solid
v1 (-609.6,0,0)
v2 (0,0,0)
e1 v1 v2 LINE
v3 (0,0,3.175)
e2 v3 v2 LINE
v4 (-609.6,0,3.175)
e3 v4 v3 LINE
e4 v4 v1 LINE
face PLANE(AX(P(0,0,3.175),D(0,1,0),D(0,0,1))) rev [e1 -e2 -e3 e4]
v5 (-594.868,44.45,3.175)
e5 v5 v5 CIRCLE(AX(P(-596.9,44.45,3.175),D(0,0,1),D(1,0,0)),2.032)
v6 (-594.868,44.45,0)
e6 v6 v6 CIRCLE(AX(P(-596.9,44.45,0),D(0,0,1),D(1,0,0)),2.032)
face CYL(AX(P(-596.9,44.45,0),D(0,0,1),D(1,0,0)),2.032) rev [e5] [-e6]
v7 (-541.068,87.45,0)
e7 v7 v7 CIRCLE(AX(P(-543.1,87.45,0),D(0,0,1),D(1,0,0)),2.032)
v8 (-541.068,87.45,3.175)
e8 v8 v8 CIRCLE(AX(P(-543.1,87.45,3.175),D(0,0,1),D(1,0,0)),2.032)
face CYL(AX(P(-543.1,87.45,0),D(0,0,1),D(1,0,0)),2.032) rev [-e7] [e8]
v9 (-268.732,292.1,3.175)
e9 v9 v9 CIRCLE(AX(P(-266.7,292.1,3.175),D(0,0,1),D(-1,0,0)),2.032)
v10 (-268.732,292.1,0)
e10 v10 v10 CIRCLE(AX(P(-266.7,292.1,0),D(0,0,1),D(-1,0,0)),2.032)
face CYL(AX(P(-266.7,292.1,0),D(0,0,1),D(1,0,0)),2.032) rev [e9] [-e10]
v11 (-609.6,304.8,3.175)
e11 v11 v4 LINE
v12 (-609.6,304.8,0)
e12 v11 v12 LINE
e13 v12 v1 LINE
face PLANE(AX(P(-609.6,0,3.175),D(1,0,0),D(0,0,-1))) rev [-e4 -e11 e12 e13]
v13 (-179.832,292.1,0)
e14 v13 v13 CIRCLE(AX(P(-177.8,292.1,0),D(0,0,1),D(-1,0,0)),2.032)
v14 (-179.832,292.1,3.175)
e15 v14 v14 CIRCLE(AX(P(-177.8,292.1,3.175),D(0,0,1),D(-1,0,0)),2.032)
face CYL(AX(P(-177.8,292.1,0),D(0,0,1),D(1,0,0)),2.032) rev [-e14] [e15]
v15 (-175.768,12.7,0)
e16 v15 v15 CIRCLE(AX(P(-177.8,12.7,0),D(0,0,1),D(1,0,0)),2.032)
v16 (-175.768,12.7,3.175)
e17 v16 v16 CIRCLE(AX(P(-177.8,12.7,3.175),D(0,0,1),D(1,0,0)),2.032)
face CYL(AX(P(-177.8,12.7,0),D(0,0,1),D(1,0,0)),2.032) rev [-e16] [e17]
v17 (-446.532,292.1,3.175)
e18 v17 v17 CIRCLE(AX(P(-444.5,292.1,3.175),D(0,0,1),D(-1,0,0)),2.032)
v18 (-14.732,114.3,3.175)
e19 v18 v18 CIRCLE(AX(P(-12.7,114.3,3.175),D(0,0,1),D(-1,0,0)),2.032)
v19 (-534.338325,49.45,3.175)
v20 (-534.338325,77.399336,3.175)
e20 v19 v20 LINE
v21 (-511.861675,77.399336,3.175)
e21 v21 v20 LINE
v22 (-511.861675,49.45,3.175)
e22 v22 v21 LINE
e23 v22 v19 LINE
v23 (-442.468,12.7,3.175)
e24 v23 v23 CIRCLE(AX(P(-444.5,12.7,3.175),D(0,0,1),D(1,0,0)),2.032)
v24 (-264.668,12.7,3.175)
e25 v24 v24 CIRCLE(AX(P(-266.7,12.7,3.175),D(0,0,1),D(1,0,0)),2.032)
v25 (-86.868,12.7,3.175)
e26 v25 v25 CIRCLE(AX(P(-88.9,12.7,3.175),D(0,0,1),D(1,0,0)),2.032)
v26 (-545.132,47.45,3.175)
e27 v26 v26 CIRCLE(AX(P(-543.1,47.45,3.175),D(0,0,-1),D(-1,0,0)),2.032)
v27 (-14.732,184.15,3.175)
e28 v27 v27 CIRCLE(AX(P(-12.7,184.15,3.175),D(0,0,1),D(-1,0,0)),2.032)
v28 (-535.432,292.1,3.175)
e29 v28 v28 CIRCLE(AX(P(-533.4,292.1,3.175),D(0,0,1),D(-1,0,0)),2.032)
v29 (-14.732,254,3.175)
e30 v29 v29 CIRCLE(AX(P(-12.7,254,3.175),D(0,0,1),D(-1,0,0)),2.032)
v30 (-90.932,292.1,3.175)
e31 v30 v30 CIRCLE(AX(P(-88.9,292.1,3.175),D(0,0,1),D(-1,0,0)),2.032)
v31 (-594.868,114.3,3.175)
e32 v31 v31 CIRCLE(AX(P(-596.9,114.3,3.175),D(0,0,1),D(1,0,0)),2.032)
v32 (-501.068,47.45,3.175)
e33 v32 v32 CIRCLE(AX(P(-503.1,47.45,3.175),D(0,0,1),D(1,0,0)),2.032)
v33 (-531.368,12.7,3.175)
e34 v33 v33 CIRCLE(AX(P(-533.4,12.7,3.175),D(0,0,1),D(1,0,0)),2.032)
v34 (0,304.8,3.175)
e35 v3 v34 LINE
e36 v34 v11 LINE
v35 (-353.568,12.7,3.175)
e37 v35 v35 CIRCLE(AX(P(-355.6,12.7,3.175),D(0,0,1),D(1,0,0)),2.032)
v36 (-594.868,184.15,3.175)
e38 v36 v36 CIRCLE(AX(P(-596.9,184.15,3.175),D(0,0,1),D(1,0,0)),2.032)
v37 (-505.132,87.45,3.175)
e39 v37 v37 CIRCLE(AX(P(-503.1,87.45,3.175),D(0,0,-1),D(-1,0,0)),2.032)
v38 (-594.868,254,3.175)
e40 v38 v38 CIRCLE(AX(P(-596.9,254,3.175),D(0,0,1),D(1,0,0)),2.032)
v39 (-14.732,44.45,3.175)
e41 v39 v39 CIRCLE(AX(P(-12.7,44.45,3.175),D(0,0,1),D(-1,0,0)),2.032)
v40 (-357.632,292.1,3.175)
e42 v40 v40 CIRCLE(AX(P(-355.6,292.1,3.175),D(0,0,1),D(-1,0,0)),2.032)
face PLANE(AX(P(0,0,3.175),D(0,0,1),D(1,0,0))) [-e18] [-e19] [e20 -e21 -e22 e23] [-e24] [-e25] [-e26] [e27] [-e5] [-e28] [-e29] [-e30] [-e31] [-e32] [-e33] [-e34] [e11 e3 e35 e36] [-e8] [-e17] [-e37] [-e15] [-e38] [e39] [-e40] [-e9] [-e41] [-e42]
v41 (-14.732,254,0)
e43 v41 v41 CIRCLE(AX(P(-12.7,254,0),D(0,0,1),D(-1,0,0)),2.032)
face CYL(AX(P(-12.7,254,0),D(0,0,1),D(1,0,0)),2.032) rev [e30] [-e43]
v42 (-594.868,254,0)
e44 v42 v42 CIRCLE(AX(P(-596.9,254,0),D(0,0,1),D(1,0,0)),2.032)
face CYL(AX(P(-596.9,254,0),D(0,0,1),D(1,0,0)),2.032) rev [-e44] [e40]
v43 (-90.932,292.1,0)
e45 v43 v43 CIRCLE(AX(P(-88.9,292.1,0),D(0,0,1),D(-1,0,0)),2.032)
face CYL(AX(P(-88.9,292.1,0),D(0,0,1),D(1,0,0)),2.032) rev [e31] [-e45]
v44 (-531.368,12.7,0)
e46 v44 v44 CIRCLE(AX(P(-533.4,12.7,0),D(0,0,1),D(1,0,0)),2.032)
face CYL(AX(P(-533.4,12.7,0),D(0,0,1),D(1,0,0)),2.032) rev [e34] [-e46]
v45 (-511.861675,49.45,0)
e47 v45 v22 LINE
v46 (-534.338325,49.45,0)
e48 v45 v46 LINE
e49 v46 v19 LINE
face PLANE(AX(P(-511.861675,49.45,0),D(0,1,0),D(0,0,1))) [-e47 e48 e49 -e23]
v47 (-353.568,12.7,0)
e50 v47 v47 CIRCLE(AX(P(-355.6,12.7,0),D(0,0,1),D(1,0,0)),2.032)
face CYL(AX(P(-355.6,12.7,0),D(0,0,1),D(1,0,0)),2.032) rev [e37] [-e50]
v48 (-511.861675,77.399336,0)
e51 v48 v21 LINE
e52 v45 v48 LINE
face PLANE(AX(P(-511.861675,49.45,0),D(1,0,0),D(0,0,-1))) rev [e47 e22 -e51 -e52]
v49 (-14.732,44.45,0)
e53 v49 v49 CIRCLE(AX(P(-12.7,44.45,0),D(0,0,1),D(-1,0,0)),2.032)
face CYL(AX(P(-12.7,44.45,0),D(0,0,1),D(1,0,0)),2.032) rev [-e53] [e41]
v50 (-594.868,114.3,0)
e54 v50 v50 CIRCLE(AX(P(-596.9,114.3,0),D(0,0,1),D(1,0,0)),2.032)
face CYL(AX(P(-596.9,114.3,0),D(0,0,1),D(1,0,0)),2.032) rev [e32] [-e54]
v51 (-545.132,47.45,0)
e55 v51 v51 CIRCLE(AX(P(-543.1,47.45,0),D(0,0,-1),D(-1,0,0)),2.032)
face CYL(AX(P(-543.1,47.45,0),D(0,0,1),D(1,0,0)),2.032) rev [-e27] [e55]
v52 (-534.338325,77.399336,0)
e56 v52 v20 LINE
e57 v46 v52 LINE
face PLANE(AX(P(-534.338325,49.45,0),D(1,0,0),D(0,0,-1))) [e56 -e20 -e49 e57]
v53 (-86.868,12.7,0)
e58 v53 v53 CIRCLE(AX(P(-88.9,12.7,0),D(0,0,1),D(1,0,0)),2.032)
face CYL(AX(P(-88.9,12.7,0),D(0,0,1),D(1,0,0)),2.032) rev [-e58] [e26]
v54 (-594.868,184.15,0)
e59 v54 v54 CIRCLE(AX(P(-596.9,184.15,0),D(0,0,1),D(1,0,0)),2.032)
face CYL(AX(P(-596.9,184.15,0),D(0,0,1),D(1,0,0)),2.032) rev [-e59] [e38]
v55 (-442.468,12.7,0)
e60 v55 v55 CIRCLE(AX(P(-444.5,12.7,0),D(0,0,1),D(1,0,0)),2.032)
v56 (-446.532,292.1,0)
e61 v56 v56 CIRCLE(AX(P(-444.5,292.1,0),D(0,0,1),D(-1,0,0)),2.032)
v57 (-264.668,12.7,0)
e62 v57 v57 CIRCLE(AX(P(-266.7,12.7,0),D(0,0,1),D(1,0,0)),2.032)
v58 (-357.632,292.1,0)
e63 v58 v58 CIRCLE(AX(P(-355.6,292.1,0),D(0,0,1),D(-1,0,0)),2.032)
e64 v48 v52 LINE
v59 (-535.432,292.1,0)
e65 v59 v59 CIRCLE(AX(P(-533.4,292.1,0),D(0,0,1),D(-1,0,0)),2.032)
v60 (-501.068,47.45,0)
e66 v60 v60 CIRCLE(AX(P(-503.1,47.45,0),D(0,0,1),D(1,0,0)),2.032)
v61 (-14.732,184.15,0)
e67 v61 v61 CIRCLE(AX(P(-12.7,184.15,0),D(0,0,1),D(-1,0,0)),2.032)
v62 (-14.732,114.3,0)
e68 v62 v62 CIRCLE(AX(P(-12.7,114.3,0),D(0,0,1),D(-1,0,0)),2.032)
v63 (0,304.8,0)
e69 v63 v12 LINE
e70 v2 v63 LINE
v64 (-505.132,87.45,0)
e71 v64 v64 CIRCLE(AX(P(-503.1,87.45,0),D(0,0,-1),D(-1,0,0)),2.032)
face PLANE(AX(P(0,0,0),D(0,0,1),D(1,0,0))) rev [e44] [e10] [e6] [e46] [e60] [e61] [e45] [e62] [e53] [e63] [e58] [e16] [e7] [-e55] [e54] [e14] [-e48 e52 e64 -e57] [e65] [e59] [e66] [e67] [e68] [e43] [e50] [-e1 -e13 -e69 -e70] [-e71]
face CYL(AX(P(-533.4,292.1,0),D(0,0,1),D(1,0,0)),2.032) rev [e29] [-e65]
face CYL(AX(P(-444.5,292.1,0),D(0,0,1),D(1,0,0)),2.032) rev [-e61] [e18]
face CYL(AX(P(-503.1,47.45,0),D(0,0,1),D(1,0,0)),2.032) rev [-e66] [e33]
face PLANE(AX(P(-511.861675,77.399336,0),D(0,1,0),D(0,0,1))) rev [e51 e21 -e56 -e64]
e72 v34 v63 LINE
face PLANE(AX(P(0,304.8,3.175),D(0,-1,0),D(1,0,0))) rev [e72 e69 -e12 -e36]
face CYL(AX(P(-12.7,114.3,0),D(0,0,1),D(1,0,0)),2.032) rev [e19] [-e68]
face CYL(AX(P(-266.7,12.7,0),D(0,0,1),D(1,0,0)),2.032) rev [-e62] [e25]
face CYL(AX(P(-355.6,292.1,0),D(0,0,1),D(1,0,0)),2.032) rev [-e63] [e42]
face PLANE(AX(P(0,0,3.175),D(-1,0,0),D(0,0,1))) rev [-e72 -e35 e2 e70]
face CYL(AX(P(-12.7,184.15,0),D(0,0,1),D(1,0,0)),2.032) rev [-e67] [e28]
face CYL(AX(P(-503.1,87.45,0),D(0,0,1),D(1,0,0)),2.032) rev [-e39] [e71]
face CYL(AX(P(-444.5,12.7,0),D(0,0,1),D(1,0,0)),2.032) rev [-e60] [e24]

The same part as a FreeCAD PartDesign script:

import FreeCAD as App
import Part
import Sketcher
from FreeCAD import Vector
Q = App.Units.Quantity


def add_polygon(sketch, points):
    """Adds a closed chain of lines whose ends are joined by coincident constraints."""
    first, n = sketch.GeometryCount, len(points)
    for a, b in zip(points, points[1:] + points[:1]):
        sketch.addGeometry(Part.LineSegment(App.Vector(*a, 0), App.Vector(*b, 0)), False)
    for i in range(n):
        sketch.addConstraint(Sketcher.Constraint("Coincident", first + i, 2, first + (i + 1) % n, 1))

doc = App.newDocument("Part")
params = doc.addObject("Spreadsheet::Sheet", "Params")
for row, (alias, value) in enumerate([
    ("sketch1_width", "24 in"),
    ("sketch1_height", "12 in"),
    ("pad1_length", "0.125 in"),
    ("sketch2_diameter", "0.16 in"),
    ("sketch3_diameter", "0.16 in"),
    ("pocket2_length", "0.125 in"),
    ("sketch4_diameter", "0.16 in"),
], start=1):
    params.set(f"A{row}", alias)
    params.set(f"B{row}", "=" + value)
    params.setAlias(f"B{row}", alias)

body = doc.addObject("PartDesign::Body", "Body")

# Sketch on XY plane
sketch1 = body.newObject("Sketcher::SketchObject", "Sketch")
sketch1.AttachmentSupport = (doc.getObject("XY_Plane"), [""])
sketch1.MapMode = "FlatFace"
add_polygon(sketch1, [(-609.6, 304.8), (-609.6, 0), (0, 0), (0, 304.8)])  # lines 0-3
sketch1.addConstraint(Sketcher.Constraint("Vertical", 0))
sketch1.addConstraint(Sketcher.Constraint("Horizontal", 1))
sketch1.addConstraint(Sketcher.Constraint("Vertical", 2))
sketch1.addConstraint(Sketcher.Constraint("Horizontal", 3))
sketch1.addConstraint(Sketcher.Constraint("Coincident", 1, 2, -1, 1))
sketch1.addConstraint(Sketcher.Constraint("DistanceX", 1, 1, 1, 2, Q("24 in")))
sketch1.addConstraint(Sketcher.Constraint("DistanceY", 0, 2, 0, 1, Q("12 in")))
sketch1.setExpression("Constraints[9]", "Params.sketch1_width")
sketch1.setExpression("Constraints[10]", "Params.sketch1_height")
pad1 = body.newObject("PartDesign::Pad", "Pad")
pad1.Profile = sketch1
pad1.setExpression("Length", "Params.pad1_length")

# Sketch on XY plane
sketch2 = body.newObject("Sketcher::SketchObject", "Sketch001")
sketch2.AttachmentSupport = (doc.getObject("XY_Plane"), [""])
sketch2.MapMode = "FlatFace"
sketch2.AttachmentOffset = App.Placement(Vector(0, 0, 0.125 * 25.4), App.Rotation())
sketch2.addGeometry(Part.Circle(Vector(-533.4, 12.7, 0), Vector(0, 0, 1), 2.032), False)
sketch2.addGeometry(Part.Circle(Vector(-444.5, 12.7, 0), Vector(0, 0, 1), 2.032), False)
sketch2.addGeometry(Part.Circle(Vector(-355.6, 12.7, 0), Vector(0, 0, 1), 2.032), False)
sketch2.addGeometry(Part.Circle(Vector(-266.7, 12.7, 0), Vector(0, 0, 1), 2.032), False)
sketch2.addGeometry(Part.Circle(Vector(-177.8, 12.7, 0), Vector(0, 0, 1), 2.032), False)
sketch2.addGeometry(Part.Circle(Vector(-88.9, 12.7, 0), Vector(0, 0, 1), 2.032), False)
sketch2.addGeometry(Part.Circle(Vector(-88.9, 292.1, 0), Vector(0, 0, 1), 2.032), False)
sketch2.addGeometry(Part.Circle(Vector(-177.8, 292.1, 0), Vector(0, 0, 1), 2.032), False)
sketch2.addGeometry(Part.Circle(Vector(-266.7, 292.1, 0), Vector(0, 0, 1), 2.032), False)
sketch2.addGeometry(Part.Circle(Vector(-355.6, 292.1, 0), Vector(0, 0, 1), 2.032), False)
sketch2.addGeometry(Part.Circle(Vector(-444.5, 292.1, 0), Vector(0, 0, 1), 2.032), False)
sketch2.addGeometry(Part.Circle(Vector(-533.4, 292.1, 0), Vector(0, 0, 1), 2.032), False)
sketch2.addConstraint(Sketcher.Constraint("Equal", 0, 1))
sketch2.addConstraint(Sketcher.Constraint("Equal", 1, 2))
sketch2.addConstraint(Sketcher.Constraint("Equal", 2, 3))
sketch2.addConstraint(Sketcher.Constraint("Equal", 3, 4))
sketch2.addConstraint(Sketcher.Constraint("Equal", 4, 5))
sketch2.addConstraint(Sketcher.Constraint("Equal", 5, 6))
sketch2.addConstraint(Sketcher.Constraint("Equal", 6, 7))
sketch2.addConstraint(Sketcher.Constraint("Equal", 7, 8))
sketch2.addConstraint(Sketcher.Constraint("Equal", 8, 9))
sketch2.addConstraint(Sketcher.Constraint("Equal", 9, 10))
sketch2.addConstraint(Sketcher.Constraint("Equal", 10, 11))
sketch2.addConstraint(Sketcher.Constraint("Horizontal", 0, 3, 1, 3))
sketch2.addConstraint(Sketcher.Constraint("Horizontal", 1, 3, 2, 3))
sketch2.addConstraint(Sketcher.Constraint("Horizontal", 2, 3, 3, 3))
sketch2.addConstraint(Sketcher.Constraint("Horizontal", 3, 3, 4, 3))
sketch2.addConstraint(Sketcher.Constraint("Horizontal", 4, 3, 5, 3))
sketch2.addConstraint(Sketcher.Constraint("Horizontal", 6, 3, 7, 3))
sketch2.addConstraint(Sketcher.Constraint("Horizontal", 7, 3, 8, 3))
sketch2.addConstraint(Sketcher.Constraint("Horizontal", 8, 3, 9, 3))
sketch2.addConstraint(Sketcher.Constraint("Horizontal", 9, 3, 10, 3))
sketch2.addConstraint(Sketcher.Constraint("Horizontal", 10, 3, 11, 3))
sketch2.addConstraint(Sketcher.Constraint("Vertical", 5, 3, 6, 3))
sketch2.addConstraint(Sketcher.Constraint("Vertical", 4, 3, 7, 3))
sketch2.addConstraint(Sketcher.Constraint("Vertical", 3, 3, 8, 3))
sketch2.addConstraint(Sketcher.Constraint("Vertical", 2, 3, 9, 3))
sketch2.addConstraint(Sketcher.Constraint("Vertical", 1, 3, 10, 3))
sketch2.addConstraint(Sketcher.Constraint("Vertical", 0, 3, 11, 3))
sketch2.addConstraint(Sketcher.Constraint("Diameter", 0, Q("0.16 in")))
sketch2.addConstraint(Sketcher.Constraint("DistanceX", 0, 3, -1, 1, Q("21 in")))
sketch2.addConstraint(Sketcher.Constraint("DistanceX", 2, 3, -1, 1, Q("14 in")))
sketch2.addConstraint(Sketcher.Constraint("DistanceX", 4, 3, -1, 1, Q("7 in")))
sketch2.addConstraint(Sketcher.Constraint("DistanceX", 1, 3, 3, 3, Q("7 in")))
sketch2.addConstraint(Sketcher.Constraint("DistanceX", 3, 3, 5, 3, Q("7 in")))
sketch2.addConstraint(Sketcher.Constraint("DistanceY", 5, 3, 6, 3, Q("11 in")))
sketch2.addConstraint(Sketcher.Constraint("DistanceY", -1, 1, 0, 3, Q("0.5 in")))
sketch2.addConstraint(Sketcher.Constraint("DistanceX", 1, 3, -1, 1, Q("17.5 in")))
sketch2.setExpression("Constraints[27]", "Params.sketch2_diameter")
pocket1 = body.newObject("PartDesign::Pocket", "Pocket")
pocket1.Profile = sketch2
pocket1.Type = "ThroughAll"

# Sketch on XY plane
sketch3 = body.newObject("Sketcher::SketchObject", "Sketch002")
sketch3.AttachmentSupport = (doc.getObject("XY_Plane"), [""])
sketch3.MapMode = "FlatFace"
sketch3.AttachmentOffset = App.Placement(Vector(0, 0, 0.125 * 25.4), App.Rotation())
sketch3.addGeometry(Part.Circle(Vector(-596.9, 254, 0), Vector(0, 0, 1), 2.032), False)
sketch3.addGeometry(Part.Circle(Vector(-596.9, 184.15, 0), Vector(0, 0, 1), 2.032), False)
sketch3.addGeometry(Part.Circle(Vector(-596.9, 114.3, 0), Vector(0, 0, 1), 2.032), False)
sketch3.addGeometry(Part.Circle(Vector(-596.9, 44.45, 0), Vector(0, 0, 1), 2.032), False)
sketch3.addGeometry(Part.Circle(Vector(-12.7, 44.45, 0), Vector(0, 0, 1), 2.032), False)
sketch3.addGeometry(Part.Circle(Vector(-12.7, 114.3, 0), Vector(0, 0, 1), 2.032), False)
sketch3.addGeometry(Part.Circle(Vector(-12.7, 184.15, 0), Vector(0, 0, 1), 2.032), False)
sketch3.addGeometry(Part.Circle(Vector(-12.7, 254, 0), Vector(0, 0, 1), 2.032), False)
sketch3.addConstraint(Sketcher.Constraint("Equal", 0, 1))
sketch3.addConstraint(Sketcher.Constraint("Equal", 1, 2))
sketch3.addConstraint(Sketcher.Constraint("Equal", 2, 3))
sketch3.addConstraint(Sketcher.Constraint("Equal", 3, 4))
sketch3.addConstraint(Sketcher.Constraint("Equal", 4, 5))
sketch3.addConstraint(Sketcher.Constraint("Equal", 5, 6))
sketch3.addConstraint(Sketcher.Constraint("Equal", 6, 7))
sketch3.addConstraint(Sketcher.Constraint("Horizontal", 3, 3, 4, 3))
sketch3.addConstraint(Sketcher.Constraint("Horizontal", 2, 3, 5, 3))
sketch3.addConstraint(Sketcher.Constraint("Horizontal", 1, 3, 6, 3))
sketch3.addConstraint(Sketcher.Constraint("Horizontal", 0, 3, 7, 3))
sketch3.addConstraint(Sketcher.Constraint("Vertical", 0, 3, 1, 3))
sketch3.addConstraint(Sketcher.Constraint("Vertical", 1, 3, 2, 3))
sketch3.addConstraint(Sketcher.Constraint("Vertical", 2, 3, 3, 3))
sketch3.addConstraint(Sketcher.Constraint("Vertical", 4, 3, 5, 3))
sketch3.addConstraint(Sketcher.Constraint("Vertical", 5, 3, 6, 3))
sketch3.addConstraint(Sketcher.Constraint("Vertical", 6, 3, 7, 3))
sketch3.addConstraint(Sketcher.Constraint("Diameter", 0, Q("0.16 in")))
sketch3.addConstraint(Sketcher.Constraint("DistanceY", -1, 1, 0, 3, Q("10 in")))
sketch3.addConstraint(Sketcher.Constraint("DistanceX", 3, 3, 4, 3, Q("23 in")))
sketch3.addConstraint(Sketcher.Constraint("DistanceX", 0, 3, -1, 1, Q("23.5 in")))
sketch3.addConstraint(Sketcher.Constraint("DistanceY", -1, 1, 2, 3, Q("4.5 in")))
sketch3.addConstraint(Sketcher.Constraint("DistanceY", 3, 3, 1, 3, Q("5.5 in")))
sketch3.addConstraint(Sketcher.Constraint("DistanceY", -1, 1, 1, 3, Q("7.25 in")))
sketch3.setExpression("Constraints[17]", "Params.sketch3_diameter")
pocket2 = body.newObject("PartDesign::Pocket", "Pocket001")
pocket2.Profile = sketch3
pocket2.setExpression("Length", "Params.pocket2_length")

# Sketch on XY plane
sketch4 = body.newObject("Sketcher::SketchObject", "Sketch003")
sketch4.AttachmentSupport = (doc.getObject("XY_Plane"), [""])
sketch4.MapMode = "FlatFace"
sketch4.AttachmentOffset = App.Placement(Vector(0, 0, 0.125 * 25.4), App.Rotation())
sketch4.addGeometry(Part.Circle(Vector(-543.1, 87.45, 0), Vector(0, 0, 1), 2.032), False)  # 0
sketch4.addGeometry(Part.Circle(Vector(-503.1, 87.45, 0), Vector(0, 0, 1), 2.032), False)  # 1
sketch4.addGeometry(Part.Circle(Vector(-503.1, 47.45, 0), Vector(0, 0, 1), 2.032), False)  # 2
sketch4.addGeometry(Part.Circle(Vector(-543.1, 47.45, 0), Vector(0, 0, 1), 2.032), False)  # 3
add_polygon(sketch4, [(-534.338325, 77.399336), (-534.338325, 49.45), (-511.861675, 49.45), (-511.861675, 77.399336)])  # lines 4-7
sketch4.addConstraint(Sketcher.Constraint("Vertical", 4))
sketch4.addConstraint(Sketcher.Constraint("Horizontal", 5))
sketch4.addConstraint(Sketcher.Constraint("Vertical", 6))
sketch4.addConstraint(Sketcher.Constraint("Horizontal", 7))
sketch4.addConstraint(Sketcher.Constraint("Equal", 0, 1))
sketch4.addConstraint(Sketcher.Constraint("Equal", 1, 2))
sketch4.addConstraint(Sketcher.Constraint("Equal", 2, 3))
sketch4.addConstraint(Sketcher.Constraint("Horizontal", 0, 3, 1, 3))
sketch4.addConstraint(Sketcher.Constraint("Horizontal", 2, 3, 3, 3))
sketch4.addConstraint(Sketcher.Constraint("Vertical", 1, 3, 2, 3))
sketch4.addConstraint(Sketcher.Constraint("Vertical", 0, 3, 3, 3))
sketch4.addConstraint(Sketcher.Constraint("Diameter", 0, Q("0.16 in")))
sketch4.addConstraint(Sketcher.Constraint("DistanceX", 5, 1, 5, 2, 22.47665))
sketch4.addConstraint(Sketcher.Constraint("DistanceX", 0, 3, -1, 1, 543.1))
sketch4.addConstraint(Sketcher.Constraint("DistanceY", -1, 1, 0, 3, 87.45))
sketch4.addConstraint(Sketcher.Constraint("DistanceX", 1, 3, -1, 1, 503.1))
sketch4.addConstraint(Sketcher.Constraint("DistanceY", -1, 1, 2, 3, 47.45))
sketch4.addConstraint(Sketcher.Constraint("DistanceY", -1, 1, 4, 2, 49.45))
sketch4.addConstraint(Sketcher.Constraint("DistanceY", 4, 2, 4, 1, 27.949336))
sketch4.addConstraint(Sketcher.Constraint("DistanceX", 4, 2, -1, 1, 534.338325))
sketch4.setExpression("Constraints[15]", "Params.sketch4_diameter")
pocket3 = body.newObject("PartDesign::Pocket", "Pocket002")
pocket3.Profile = sketch4
pocket3.Type = "ThroughAll"

doc.recompute()
